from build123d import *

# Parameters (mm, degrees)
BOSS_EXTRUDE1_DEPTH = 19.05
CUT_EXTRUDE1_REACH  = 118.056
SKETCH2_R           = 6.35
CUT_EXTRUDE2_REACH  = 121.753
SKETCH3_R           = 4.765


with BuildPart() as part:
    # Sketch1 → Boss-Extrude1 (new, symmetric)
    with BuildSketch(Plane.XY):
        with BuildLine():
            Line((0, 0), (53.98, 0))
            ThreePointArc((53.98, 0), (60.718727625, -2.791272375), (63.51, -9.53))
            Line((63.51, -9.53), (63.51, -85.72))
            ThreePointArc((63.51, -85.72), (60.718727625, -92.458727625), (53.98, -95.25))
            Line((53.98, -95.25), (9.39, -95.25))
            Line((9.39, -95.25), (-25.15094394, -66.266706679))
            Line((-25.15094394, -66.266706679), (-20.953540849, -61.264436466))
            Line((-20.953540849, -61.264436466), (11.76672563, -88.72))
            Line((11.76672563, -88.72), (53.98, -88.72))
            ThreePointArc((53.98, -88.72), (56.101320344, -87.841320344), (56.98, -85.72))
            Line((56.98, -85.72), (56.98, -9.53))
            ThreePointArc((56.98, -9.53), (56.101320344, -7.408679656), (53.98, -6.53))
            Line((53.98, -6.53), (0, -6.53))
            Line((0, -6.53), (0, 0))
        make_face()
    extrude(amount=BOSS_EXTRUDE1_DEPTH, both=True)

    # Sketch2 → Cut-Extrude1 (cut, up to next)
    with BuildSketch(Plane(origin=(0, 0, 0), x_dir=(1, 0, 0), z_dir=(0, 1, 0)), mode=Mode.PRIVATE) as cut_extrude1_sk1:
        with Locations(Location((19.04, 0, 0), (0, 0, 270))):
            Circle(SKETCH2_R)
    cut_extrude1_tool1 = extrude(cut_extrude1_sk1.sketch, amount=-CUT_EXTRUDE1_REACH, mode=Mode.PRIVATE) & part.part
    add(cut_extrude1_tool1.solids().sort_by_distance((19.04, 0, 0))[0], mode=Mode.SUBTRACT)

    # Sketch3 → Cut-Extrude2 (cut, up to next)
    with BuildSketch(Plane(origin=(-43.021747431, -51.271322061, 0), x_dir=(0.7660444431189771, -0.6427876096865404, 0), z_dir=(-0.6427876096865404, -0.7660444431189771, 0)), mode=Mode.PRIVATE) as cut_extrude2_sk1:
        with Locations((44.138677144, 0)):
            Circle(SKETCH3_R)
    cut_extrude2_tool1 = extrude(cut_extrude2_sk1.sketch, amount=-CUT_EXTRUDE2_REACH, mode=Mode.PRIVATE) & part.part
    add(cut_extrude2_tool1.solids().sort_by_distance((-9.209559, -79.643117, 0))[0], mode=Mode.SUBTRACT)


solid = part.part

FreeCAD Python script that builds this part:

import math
import FreeCAD as App
import Part
import Sketcher
from FreeCAD import Vector
Q = App.Units.Quantity

doc = App.newDocument("Part")
params = doc.addObject("Spreadsheet::Sheet", "Params")
for row, (alias, value) in enumerate([
    ("pad1_length", "1.5 in"),
    ("sketch2_diameter", "0.5 in"),
], start=1):
    params.set(f"A{row}", alias)
    params.set(f"B{row}", "=" + value)
    params.setAlias(f"B{row}", alias)

body = doc.addObject("PartDesign::Body", "Body")

# Sketch on XY plane
sketch1 = body.newObject("Sketcher::SketchObject", "Sketch")
sketch1.AttachmentSupport = (doc.getObject("XY_Plane"), [""])
sketch1.MapMode = "FlatFace"
sketch1.addGeometry(Part.LineSegment(Vector(53.98, 0, 0), Vector(0, 0, 0)), False)
sketch1.addGeometry(Part.LineSegment(Vector(0, 0, 0), Vector(0, -6.53, 0)), False)
sketch1.addGeometry(Part.LineSegment(Vector(0, -6.53, 0), Vector(53.98, -6.53, 0)), False)
sketch1.addGeometry(Part.ArcOfCircle(Part.Circle(Vector(53.98, -9.53, 0), Vector(0, 0, 1), 3), math.radians(0), math.radians(90)), False)
sketch1.addGeometry(Part.LineSegment(Vector(56.98, -9.53, 0), Vector(56.98, -85.72, 0)), False)
sketch1.addGeometry(Part.ArcOfCircle(Part.Circle(Vector(53.98, -85.72, 0), Vector(0, 0, 1), 3), math.radians(-90), math.radians(0)), False)
sketch1.addGeometry(Part.LineSegment(Vector(53.98, -88.72, 0), Vector(11.766726, -88.72, 0)), False)
sketch1.addGeometry(Part.LineSegment(Vector(11.766726, -88.72, 0), Vector(-20.953541, -61.264436, 0)), False)
sketch1.addGeometry(Part.LineSegment(Vector(-20.953541, -61.264436, 0), Vector(-25.150944, -66.266707, 0)), False)
sketch1.addGeometry(Part.LineSegment(Vector(-25.150944, -66.266707, 0), Vector(9.39, -95.25, 0)), False)
sketch1.addGeometry(Part.LineSegment(Vector(9.39, -95.25, 0), Vector(53.98, -95.25, 0)), False)
sketch1.addGeometry(Part.ArcOfCircle(Part.Circle(Vector(53.98, -85.72, 0), Vector(0, 0, 1), 9.53), math.radians(-90), math.radians(0)), False)
sketch1.addGeometry(Part.LineSegment(Vector(63.51, -85.72, 0), Vector(63.51, -9.53, 0)), False)
sketch1.addGeometry(Part.ArcOfCircle(Part.Circle(Vector(53.98, -9.53, 0), Vector(0, 0, 1), 9.53), math.radians(0), math.radians(90)), False)
sketch1.addConstraint(Sketcher.Constraint("Coincident", 0, 2, 1, 1))
sketch1.addConstraint(Sketcher.Constraint("Coincident", 1, 2, 2, 1))
sketch1.addConstraint(Sketcher.Constraint("Tangent", 2, 2, 3, 2))
sketch1.addConstraint(Sketcher.Constraint("Tangent", 3, 1, 4, 1))
sketch1.addConstraint(Sketcher.Constraint("Tangent", 4, 2, 5, 2))
sketch1.addConstraint(Sketcher.Constraint("Tangent", 5, 1, 6, 1))
sketch1.addConstraint(Sketcher.Constraint("Coincident", 6, 2, 7, 1))
sketch1.addConstraint(Sketcher.Constraint("Coincident", 7, 2, 8, 1))
sketch1.addConstraint(Sketcher.Constraint("Coincident", 8, 2, 9, 1))
sketch1.addConstraint(Sketcher.Constraint("Coincident", 9, 2, 10, 1))
sketch1.addConstraint(Sketcher.Constraint("Tangent", 10, 2, 11, 1))
sketch1.addConstraint(Sketcher.Constraint("Tangent", 11, 2, 12, 1))
sketch1.addConstraint(Sketcher.Constraint("Tangent", 12, 2, 13, 1))
sketch1.addConstraint(Sketcher.Constraint("Tangent", 13, 2, 0, 1))
sketch1.addConstraint(Sketcher.Constraint("Horizontal", 0))
sketch1.addConstraint(Sketcher.Constraint("Vertical", 1))
sketch1.addConstraint(Sketcher.Constraint("Horizontal", 2))
sketch1.addConstraint(Sketcher.Constraint("Vertical", 4))
sketch1.addConstraint(Sketcher.Constraint("Horizontal", 6))
sketch1.addConstraint(Sketcher.Constraint("Horizontal", 10))
sketch1.addConstraint(Sketcher.Constraint("Vertical", 12))
sketch1.addConstraint(Sketcher.Constraint("Coincident", 0, 2, -1, 1))
sketch1.addConstraint(Sketcher.Constraint("Coincident", 11, 3, 5, 3))
sketch1.addConstraint(Sketcher.Constraint("Coincident", 13, 3, 3, 3))
sketch1.addConstraint(Sketcher.Constraint("Equal", 3, 5))
sketch1.addConstraint(Sketcher.Constraint("Perpendicular", 7, 8))
sketch1.addConstraint(Sketcher.Constraint("Perpendicular", 8, 9))
sketch1.addConstraint(Sketcher.Constraint("Angle", 7, Q("140 deg")))
sketch1.addConstraint(Sketcher.Constraint("DistanceY", 9, 2, -1, 1, Q("3.75 in")))
sketch1.addConstraint(Sketcher.Constraint("Radius", 3, Q("3 mm")))
sketch1.addConstraint(Sketcher.Constraint("Radius", 11, Q("9.53 mm")))
sketch1.addConstraint(Sketcher.Constraint("DistanceX", 0, 2, 0, 1, Q("53.98 mm")))
sketch1.addConstraint(Sketcher.Constraint("DistanceX", 10, 1, 10, 2, Q("44.59 mm")))
sketch1.addConstraint(Sketcher.Constraint("Distance", 8, Q("6.53 mm")))
sketch1.addConstraint(Sketcher.Constraint("Distance", 9, Q("45.09 mm")))
pad1 = body.newObject("PartDesign::Pad", "Pad")
pad1.Profile = sketch1
pad1.setExpression("Length", "Params.pad1_length")
pad1.Midplane = True

# Sketch on XZ plane
sketch2 = body.newObject("Sketcher::SketchObject", "Sketch001")
sketch2.AttachmentSupport = (doc.getObject("XZ_Plane"), [""])
sketch2.MapMode = "FlatFace"
sketch2.addGeometry(Part.Circle(Vector(19.04, 0, 0), Vector(0, 0, 1), 6.35), False)
sketch2.addConstraint(Sketcher.Constraint("PointOnObject", 0, 3, -1))
sketch2.addConstraint(Sketcher.Constraint("Diameter", 0, Q("0.5 in")))
sketch2.addConstraint(Sketcher.Constraint("DistanceX", -1, 1, 0, 3, Q("19.04 mm")))
sketch2.setExpression("Constraints[1]", "Params.sketch2_diameter")
pocket1 = body.newObject("PartDesign::Pocket", "Pocket")
pocket1.Profile = sketch2
pocket1.Type = "UpToFirst"
pocket1.Reversed = True

# Sketch on an angled plane
sketch3 = body.newObject("Sketcher::SketchObject", "Sketch002")
sketch3.Placement = App.Placement(Vector(-43.021747, -51.271322, 0), App.Rotation(Vector(0.766044443, -0.64278761, 0), Vector(0, 0, 1), Vector(-0.64278761, -0.766044443, 0), "ZXY"))
sketch3.addGeometry(Part.Circle(Vector(44.138677, 0, 0), Vector(0, 0, 1), 4.765), False)
sketch3.addConstraint(Sketcher.Constraint("PointOnObject", 0, 3, -1))
sketch3.addConstraint(Sketcher.Constraint("Diameter", 0, Q("9.53 mm")))
sketch3.addConstraint(Sketcher.Constraint("DistanceX", -1, 1, 0, 3, Q("44.138677 mm")))
pocket2 = body.newObject("PartDesign::Pocket", "Pocket001")
pocket2.Profile = sketch3
pocket2.Type = "UpToFirst"

doc.recompute()
